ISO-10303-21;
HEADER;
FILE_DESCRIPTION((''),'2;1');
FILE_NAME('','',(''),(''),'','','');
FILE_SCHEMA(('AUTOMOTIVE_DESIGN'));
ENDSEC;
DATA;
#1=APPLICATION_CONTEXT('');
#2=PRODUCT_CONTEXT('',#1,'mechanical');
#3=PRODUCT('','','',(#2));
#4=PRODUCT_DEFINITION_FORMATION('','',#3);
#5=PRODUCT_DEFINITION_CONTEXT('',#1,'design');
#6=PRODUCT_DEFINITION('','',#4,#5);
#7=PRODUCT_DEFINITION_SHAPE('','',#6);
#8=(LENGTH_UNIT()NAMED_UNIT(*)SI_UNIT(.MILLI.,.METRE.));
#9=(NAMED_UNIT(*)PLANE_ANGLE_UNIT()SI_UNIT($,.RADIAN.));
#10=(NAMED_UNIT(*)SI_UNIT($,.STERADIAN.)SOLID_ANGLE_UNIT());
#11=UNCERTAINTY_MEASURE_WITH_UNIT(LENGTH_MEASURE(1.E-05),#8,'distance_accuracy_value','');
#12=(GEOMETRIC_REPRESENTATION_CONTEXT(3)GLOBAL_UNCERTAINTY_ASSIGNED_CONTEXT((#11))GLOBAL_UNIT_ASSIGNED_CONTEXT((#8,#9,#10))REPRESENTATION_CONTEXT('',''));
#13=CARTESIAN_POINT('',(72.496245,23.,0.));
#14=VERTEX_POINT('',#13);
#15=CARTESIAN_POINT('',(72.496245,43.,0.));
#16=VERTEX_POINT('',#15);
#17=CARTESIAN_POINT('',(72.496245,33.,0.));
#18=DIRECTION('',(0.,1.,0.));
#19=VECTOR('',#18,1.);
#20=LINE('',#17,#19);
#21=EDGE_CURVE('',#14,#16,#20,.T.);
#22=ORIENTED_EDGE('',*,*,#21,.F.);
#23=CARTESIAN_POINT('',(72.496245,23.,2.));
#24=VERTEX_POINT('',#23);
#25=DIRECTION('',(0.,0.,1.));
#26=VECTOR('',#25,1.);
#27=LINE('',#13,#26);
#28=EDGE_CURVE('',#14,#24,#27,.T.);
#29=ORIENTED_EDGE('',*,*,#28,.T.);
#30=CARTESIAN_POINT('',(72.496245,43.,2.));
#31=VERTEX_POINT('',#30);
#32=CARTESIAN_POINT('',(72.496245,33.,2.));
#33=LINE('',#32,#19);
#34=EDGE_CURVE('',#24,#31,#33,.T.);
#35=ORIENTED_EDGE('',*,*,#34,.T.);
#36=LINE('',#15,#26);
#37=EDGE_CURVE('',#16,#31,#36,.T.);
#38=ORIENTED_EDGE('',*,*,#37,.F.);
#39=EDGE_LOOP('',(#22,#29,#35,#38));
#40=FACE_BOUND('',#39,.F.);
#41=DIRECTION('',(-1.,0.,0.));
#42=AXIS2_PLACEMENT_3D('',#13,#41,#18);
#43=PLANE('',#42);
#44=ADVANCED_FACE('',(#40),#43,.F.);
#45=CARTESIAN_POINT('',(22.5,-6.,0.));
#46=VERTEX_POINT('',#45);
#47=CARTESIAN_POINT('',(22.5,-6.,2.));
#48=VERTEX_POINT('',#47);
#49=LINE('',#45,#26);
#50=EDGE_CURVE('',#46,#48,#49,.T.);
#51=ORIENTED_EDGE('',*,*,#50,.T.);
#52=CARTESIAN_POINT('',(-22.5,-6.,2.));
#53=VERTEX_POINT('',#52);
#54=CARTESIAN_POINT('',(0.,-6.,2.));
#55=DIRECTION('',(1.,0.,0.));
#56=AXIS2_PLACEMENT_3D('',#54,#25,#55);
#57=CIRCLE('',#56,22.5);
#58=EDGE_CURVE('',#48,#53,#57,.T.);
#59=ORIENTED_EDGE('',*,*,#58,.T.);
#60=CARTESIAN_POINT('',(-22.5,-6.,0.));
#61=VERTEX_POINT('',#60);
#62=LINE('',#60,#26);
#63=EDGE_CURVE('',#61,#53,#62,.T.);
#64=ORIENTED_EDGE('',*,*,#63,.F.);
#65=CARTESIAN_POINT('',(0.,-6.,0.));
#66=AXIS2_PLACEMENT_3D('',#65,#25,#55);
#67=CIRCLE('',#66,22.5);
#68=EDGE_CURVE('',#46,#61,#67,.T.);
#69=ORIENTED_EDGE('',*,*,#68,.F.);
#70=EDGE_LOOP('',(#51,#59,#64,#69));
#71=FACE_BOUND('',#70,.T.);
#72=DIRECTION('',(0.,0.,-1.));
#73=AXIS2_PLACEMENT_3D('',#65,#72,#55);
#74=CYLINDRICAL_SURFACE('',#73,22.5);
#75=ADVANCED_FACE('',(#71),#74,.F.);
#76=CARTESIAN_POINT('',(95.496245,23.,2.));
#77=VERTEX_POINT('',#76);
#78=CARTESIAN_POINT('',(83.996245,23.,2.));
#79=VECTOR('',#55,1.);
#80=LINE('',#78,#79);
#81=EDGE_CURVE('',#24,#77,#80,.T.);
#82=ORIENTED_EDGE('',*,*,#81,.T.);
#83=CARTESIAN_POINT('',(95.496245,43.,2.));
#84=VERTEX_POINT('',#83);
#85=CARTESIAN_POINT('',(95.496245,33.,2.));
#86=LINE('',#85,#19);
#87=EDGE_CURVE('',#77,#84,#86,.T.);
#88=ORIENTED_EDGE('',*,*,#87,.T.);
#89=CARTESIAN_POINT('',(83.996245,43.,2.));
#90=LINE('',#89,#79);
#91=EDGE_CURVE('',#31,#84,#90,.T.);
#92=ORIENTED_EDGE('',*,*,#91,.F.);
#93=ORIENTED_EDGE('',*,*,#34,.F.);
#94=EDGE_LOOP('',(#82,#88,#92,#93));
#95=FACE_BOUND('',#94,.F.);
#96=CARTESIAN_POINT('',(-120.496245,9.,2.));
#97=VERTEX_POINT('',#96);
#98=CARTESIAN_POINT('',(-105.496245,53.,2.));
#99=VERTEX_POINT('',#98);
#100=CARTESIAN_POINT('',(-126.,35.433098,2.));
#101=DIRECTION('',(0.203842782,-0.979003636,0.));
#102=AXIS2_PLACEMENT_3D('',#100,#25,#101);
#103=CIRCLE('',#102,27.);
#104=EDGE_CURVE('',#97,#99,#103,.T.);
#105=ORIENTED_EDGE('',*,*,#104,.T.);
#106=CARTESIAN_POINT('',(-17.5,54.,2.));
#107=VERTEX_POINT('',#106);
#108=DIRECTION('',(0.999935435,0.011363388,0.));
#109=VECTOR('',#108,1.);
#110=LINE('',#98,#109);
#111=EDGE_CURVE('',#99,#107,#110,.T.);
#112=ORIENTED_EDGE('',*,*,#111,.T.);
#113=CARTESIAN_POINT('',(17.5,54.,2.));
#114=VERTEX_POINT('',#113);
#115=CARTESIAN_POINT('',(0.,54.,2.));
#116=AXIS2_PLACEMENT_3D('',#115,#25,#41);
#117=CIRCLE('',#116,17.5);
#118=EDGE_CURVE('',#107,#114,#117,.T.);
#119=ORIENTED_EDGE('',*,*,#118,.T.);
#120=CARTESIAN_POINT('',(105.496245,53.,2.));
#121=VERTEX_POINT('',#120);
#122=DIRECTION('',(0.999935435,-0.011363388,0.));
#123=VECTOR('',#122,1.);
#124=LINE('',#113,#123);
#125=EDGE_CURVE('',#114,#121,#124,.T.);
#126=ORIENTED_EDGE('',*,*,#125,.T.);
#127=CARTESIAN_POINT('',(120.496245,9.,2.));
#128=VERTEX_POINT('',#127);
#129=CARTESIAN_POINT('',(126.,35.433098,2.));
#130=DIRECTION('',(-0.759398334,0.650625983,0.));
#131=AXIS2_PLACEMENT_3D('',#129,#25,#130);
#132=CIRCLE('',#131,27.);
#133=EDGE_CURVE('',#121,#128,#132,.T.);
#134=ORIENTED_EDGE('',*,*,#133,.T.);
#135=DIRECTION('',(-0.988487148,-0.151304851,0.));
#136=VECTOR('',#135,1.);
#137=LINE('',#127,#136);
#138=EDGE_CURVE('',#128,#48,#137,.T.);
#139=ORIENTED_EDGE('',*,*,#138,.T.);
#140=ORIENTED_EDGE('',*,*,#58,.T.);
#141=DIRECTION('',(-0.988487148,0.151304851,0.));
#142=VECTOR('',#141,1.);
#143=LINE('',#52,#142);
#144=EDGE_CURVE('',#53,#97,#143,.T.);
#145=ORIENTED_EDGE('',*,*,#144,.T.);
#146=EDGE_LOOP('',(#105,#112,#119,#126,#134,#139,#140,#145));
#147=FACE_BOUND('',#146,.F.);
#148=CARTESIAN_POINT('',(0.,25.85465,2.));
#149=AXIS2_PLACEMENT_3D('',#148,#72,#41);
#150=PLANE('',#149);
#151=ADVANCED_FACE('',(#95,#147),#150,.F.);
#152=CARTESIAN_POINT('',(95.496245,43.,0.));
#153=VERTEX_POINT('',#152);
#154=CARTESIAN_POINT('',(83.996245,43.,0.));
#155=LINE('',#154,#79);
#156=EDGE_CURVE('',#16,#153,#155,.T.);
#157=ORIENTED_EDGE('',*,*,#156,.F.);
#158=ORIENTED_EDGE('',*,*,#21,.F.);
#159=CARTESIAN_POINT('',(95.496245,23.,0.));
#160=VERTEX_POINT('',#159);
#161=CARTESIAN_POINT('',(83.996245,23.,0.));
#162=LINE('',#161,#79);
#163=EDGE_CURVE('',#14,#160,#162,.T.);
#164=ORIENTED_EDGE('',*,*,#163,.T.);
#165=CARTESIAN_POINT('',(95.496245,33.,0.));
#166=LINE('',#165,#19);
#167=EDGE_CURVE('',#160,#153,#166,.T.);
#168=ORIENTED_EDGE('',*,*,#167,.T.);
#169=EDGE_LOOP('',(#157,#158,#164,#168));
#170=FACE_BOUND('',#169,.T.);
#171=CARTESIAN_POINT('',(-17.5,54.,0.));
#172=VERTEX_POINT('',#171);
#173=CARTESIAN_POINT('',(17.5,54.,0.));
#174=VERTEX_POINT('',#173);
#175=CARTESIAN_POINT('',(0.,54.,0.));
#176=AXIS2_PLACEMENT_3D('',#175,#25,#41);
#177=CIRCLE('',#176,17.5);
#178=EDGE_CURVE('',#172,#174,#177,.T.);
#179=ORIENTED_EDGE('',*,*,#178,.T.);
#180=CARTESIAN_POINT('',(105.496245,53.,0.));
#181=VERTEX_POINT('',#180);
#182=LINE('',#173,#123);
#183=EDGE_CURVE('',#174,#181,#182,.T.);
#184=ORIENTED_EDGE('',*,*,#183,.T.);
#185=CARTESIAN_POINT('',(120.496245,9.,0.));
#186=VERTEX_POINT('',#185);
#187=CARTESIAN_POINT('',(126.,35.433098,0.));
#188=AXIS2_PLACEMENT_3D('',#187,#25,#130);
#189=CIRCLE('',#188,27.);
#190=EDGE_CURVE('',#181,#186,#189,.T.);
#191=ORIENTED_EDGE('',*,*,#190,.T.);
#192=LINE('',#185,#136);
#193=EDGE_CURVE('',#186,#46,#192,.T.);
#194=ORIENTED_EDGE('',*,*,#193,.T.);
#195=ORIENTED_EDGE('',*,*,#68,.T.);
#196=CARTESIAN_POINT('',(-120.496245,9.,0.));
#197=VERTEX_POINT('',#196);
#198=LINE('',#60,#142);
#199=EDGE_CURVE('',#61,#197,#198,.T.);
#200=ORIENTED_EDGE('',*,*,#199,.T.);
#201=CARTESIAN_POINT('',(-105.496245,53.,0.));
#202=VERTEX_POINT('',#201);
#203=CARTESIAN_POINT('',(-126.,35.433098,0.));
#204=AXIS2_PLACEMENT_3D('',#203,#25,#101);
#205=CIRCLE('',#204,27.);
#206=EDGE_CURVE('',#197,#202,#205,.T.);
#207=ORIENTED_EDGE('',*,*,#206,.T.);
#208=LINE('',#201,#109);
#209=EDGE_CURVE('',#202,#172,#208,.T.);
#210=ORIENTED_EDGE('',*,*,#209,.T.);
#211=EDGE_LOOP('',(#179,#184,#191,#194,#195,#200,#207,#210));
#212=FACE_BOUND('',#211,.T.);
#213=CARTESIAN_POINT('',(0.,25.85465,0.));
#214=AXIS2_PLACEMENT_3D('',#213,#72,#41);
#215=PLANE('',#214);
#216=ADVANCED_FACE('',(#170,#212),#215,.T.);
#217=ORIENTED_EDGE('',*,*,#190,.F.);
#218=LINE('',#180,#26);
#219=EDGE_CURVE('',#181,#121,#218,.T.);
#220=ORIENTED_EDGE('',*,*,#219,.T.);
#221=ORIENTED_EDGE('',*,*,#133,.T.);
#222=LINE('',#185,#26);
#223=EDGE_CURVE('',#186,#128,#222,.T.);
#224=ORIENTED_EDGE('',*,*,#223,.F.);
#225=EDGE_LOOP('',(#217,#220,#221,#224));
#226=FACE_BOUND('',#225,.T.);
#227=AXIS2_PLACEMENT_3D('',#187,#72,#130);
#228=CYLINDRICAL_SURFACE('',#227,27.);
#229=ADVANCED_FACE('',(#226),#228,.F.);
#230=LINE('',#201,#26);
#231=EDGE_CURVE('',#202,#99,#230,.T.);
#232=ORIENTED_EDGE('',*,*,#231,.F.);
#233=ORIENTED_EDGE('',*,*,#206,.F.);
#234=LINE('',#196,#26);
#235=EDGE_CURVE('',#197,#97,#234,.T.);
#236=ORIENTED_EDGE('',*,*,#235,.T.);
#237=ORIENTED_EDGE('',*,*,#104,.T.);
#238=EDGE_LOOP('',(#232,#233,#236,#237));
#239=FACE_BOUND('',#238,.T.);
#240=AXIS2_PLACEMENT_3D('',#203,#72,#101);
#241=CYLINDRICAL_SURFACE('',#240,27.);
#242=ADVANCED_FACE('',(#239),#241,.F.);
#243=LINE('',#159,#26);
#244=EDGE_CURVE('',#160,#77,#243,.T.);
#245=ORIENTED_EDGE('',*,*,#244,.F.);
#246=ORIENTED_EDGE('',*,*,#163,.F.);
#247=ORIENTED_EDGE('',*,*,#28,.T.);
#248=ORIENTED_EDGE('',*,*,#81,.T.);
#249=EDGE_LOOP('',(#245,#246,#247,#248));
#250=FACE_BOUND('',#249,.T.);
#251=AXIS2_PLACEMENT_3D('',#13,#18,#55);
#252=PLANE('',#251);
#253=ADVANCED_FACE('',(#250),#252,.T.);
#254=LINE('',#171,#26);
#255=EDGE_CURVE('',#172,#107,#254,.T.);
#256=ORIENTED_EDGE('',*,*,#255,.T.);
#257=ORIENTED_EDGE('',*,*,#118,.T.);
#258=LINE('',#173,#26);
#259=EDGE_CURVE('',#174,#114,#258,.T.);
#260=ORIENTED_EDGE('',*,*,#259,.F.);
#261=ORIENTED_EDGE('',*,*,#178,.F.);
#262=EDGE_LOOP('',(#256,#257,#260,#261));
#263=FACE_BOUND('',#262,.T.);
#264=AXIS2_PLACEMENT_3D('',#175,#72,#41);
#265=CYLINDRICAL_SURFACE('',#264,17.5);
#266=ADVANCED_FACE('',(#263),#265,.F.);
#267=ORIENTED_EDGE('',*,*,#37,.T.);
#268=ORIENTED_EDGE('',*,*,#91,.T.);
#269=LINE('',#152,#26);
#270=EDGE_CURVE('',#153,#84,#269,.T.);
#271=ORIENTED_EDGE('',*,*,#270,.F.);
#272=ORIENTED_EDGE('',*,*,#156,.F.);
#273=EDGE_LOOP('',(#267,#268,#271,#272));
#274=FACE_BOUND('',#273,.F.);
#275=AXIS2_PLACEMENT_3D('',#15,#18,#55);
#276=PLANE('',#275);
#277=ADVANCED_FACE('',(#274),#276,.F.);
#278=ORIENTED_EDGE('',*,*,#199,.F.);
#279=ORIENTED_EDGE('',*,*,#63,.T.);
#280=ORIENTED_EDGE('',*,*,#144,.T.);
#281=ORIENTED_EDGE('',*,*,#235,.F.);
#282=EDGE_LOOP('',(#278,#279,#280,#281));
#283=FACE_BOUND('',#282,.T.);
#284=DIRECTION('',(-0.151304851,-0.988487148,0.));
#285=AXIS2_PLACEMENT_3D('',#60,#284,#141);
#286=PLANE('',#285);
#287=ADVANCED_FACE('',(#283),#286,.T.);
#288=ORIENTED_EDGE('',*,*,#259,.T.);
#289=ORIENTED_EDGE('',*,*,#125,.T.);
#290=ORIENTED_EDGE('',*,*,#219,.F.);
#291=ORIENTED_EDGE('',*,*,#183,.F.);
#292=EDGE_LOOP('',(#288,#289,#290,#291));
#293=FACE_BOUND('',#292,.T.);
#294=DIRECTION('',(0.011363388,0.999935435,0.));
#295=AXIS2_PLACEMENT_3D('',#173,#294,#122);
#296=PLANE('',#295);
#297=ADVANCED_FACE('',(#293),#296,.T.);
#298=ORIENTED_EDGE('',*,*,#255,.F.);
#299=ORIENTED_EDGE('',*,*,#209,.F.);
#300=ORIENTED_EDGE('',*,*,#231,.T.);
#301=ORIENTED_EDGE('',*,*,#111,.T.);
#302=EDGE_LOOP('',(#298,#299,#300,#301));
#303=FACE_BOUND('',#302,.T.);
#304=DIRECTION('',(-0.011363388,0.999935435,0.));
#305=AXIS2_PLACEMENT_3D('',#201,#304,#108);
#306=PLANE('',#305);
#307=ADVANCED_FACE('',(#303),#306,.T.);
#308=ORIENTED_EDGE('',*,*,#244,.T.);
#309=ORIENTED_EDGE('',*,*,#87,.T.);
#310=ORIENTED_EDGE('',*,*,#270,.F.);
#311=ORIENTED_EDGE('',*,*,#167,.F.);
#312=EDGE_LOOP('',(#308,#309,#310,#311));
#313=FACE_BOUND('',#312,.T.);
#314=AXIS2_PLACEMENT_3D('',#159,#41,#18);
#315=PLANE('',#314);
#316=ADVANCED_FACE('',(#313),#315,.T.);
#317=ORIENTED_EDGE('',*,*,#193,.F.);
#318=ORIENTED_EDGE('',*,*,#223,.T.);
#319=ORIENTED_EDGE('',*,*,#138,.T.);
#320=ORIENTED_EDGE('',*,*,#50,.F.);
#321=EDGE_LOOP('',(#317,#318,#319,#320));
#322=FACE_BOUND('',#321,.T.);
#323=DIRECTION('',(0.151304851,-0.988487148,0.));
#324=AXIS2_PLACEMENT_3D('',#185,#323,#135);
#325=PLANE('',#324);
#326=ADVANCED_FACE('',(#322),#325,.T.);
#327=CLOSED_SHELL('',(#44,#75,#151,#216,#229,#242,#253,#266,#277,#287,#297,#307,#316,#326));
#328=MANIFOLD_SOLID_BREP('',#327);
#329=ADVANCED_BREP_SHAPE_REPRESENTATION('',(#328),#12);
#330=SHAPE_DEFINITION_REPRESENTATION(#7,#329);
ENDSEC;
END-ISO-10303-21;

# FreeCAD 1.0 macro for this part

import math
import FreeCAD as App
import Part
import Sketcher
Q = App.Units.Quantity

doc = App.newDocument("Part")
body = doc.addObject("PartDesign::Body", "Body")

# Sketch on XY plane
sketch1 = body.newObject("Sketcher::SketchObject", "Sketch")
sketch1.AttachmentSupport = (doc.getObject("XY_Plane"), [""])
sketch1.MapMode = "FlatFace"
sketch1.addGeometry(Part.LineSegment(App.Vector(-18, 54, 0), App.Vector(-105, 53, 0)), False)
sketch1.addGeometry(Part.ArcOfCircle(Part.Circle(App.Vector(-126, 35, 0), App.Vector(0, 0, 1), 27), math.radians(-78), math.radians(41)), False)
sketch1.addGeometry(Part.LineSegment(App.Vector(-120, 9, 0), App.Vector(-22, -6, 0)), False)
sketch1.addGeometry(Part.ArcOfCircle(Part.Circle(App.Vector(0, -6, 0), App.Vector(0, 0, 1), 22), math.radians(0), math.radians(180)), False)
sketch1.addGeometry(Part.LineSegment(App.Vector(22, -6, 0), App.Vector(120, 9, 0)), False)
sketch1.addGeometry(Part.ArcOfCircle(Part.Circle(App.Vector(126, 35, 0), App.Vector(0, 0, 1), 27), math.radians(139), math.radians(258)), False)
sketch1.addGeometry(Part.LineSegment(App.Vector(105, 53, 0), App.Vector(18, 54, 0)), False)
sketch1.addGeometry(Part.ArcOfCircle(Part.Circle(App.Vector(0, 54, 0), App.Vector(0, 0, 1), 18), math.radians(180), math.radians(360)), False)
sketch1.addGeometry(Part.LineSegment(App.Vector(72, 23, 0), App.Vector(72, 43, 0)), False)
sketch1.addGeometry(Part.LineSegment(App.Vector(72, 43, 0), App.Vector(95, 43, 0)), False)
sketch1.addGeometry(Part.LineSegment(App.Vector(95, 43, 0), App.Vector(95, 23, 0)), False)
sketch1.addGeometry(Part.LineSegment(App.Vector(95, 23, 0), App.Vector(72, 23, 0)), False)
sketch1.addConstraint(Sketcher.Constraint("Coincident", 0, 2, 1, 2))
sketch1.addConstraint(Sketcher.Constraint("Coincident", 1, 1, 2, 1))
sketch1.addConstraint(Sketcher.Constraint("Coincident", 2, 2, 3, 2))
sketch1.addConstraint(Sketcher.Constraint("Coincident", 3, 1, 4, 1))
sketch1.addConstraint(Sketcher.Constraint("Coincident", 4, 2, 5, 2))
sketch1.addConstraint(Sketcher.Constraint("Coincident", 5, 1, 6, 1))
sketch1.addConstraint(Sketcher.Constraint("Coincident", 6, 2, 7, 2))
sketch1.addConstraint(Sketcher.Constraint("Coincident", 7, 1, 0, 1))
sketch1.addConstraint(Sketcher.Constraint("Coincident", 8, 2, 9, 1))
sketch1.addConstraint(Sketcher.Constraint("Coincident", 9, 2, 10, 1))
sketch1.addConstraint(Sketcher.Constraint("Coincident", 10, 2, 11, 1))
sketch1.addConstraint(Sketcher.Constraint("Coincident", 11, 2, 8, 1))
sketch1.addConstraint(Sketcher.Constraint("Vertical", 8))
sketch1.addConstraint(Sketcher.Constraint("Horizontal", 9))
sketch1.addConstraint(Sketcher.Constraint("Vertical", 10))
sketch1.addConstraint(Sketcher.Constraint("Horizontal", 11))
sketch1.addConstraint(Sketcher.Constraint("Equal", 1, 5))
sketch1.addConstraint(Sketcher.Constraint("Symmetric", 1, 3, 5, 3, -2))
sketch1.addConstraint(Sketcher.Constraint("Symmetric", 2, 2, 3, 1, -2))
sketch1.addConstraint(Sketcher.Constraint("Symmetric", 6, 2, 7, 1, -2))
sketch1.addConstraint(Sketcher.Constraint("Horizontal", 3, 3, 2, 2))
sketch1.addConstraint(Sketcher.Constraint("Horizontal", 1, 1, 4, 2))
sketch1.addConstraint(Sketcher.Constraint("Horizontal", 0, 2, 5, 1))
sketch1.addConstraint(Sketcher.Constraint("Horizontal", 7, 3, 6, 2))
sketch1.addConstraint(Sketcher.Constraint("Radius", 1, Q("27 mm")))
sketch1.addConstraint(Sketcher.Constraint("Radius", 3, Q("22.5 mm")))
sketch1.addConstraint(Sketcher.Constraint("Radius", 7, Q("17.5 mm")))
sketch1.addConstraint(Sketcher.Constraint("DistanceX", 9, 1, 9, 2, Q("23 mm")))
sketch1.addConstraint(Sketcher.Constraint("DistanceY", 8, 1, 8, 2, Q("20 mm")))
sketch1.addConstraint(Sketcher.Constraint("DistanceX", 1, 3, -1, 1, Q("126 mm")))
sketch1.addConstraint(Sketcher.Constraint("DistanceY", 3, 3, -1, 1, Q("6 mm")))
sketch1.addConstraint(Sketcher.Constraint("DistanceY", -1, 1, 7, 3, Q("54 mm")))
sketch1.addConstraint(Sketcher.Constraint("DistanceY", -1, 1, 0, 2, Q("53 mm")))
sketch1.addConstraint(Sketcher.Constraint("DistanceY", -1, 1, 1, 1, Q("9 mm")))
sketch1.addConstraint(Sketcher.Constraint("DistanceY", -1, 1, 8, 2, Q("43 mm")))
sketch1.addConstraint(Sketcher.Constraint("DistanceX", 1, 1, 0, 2, Q("15 mm")))
sketch1.addConstraint(Sketcher.Constraint("DistanceX", 8, 2, 5, 1, Q("33 mm")))
pad1 = body.newObject("PartDesign::Pad", "Pad")
pad1.Profile = sketch1
pad1.Length = 2

doc.recompute()
